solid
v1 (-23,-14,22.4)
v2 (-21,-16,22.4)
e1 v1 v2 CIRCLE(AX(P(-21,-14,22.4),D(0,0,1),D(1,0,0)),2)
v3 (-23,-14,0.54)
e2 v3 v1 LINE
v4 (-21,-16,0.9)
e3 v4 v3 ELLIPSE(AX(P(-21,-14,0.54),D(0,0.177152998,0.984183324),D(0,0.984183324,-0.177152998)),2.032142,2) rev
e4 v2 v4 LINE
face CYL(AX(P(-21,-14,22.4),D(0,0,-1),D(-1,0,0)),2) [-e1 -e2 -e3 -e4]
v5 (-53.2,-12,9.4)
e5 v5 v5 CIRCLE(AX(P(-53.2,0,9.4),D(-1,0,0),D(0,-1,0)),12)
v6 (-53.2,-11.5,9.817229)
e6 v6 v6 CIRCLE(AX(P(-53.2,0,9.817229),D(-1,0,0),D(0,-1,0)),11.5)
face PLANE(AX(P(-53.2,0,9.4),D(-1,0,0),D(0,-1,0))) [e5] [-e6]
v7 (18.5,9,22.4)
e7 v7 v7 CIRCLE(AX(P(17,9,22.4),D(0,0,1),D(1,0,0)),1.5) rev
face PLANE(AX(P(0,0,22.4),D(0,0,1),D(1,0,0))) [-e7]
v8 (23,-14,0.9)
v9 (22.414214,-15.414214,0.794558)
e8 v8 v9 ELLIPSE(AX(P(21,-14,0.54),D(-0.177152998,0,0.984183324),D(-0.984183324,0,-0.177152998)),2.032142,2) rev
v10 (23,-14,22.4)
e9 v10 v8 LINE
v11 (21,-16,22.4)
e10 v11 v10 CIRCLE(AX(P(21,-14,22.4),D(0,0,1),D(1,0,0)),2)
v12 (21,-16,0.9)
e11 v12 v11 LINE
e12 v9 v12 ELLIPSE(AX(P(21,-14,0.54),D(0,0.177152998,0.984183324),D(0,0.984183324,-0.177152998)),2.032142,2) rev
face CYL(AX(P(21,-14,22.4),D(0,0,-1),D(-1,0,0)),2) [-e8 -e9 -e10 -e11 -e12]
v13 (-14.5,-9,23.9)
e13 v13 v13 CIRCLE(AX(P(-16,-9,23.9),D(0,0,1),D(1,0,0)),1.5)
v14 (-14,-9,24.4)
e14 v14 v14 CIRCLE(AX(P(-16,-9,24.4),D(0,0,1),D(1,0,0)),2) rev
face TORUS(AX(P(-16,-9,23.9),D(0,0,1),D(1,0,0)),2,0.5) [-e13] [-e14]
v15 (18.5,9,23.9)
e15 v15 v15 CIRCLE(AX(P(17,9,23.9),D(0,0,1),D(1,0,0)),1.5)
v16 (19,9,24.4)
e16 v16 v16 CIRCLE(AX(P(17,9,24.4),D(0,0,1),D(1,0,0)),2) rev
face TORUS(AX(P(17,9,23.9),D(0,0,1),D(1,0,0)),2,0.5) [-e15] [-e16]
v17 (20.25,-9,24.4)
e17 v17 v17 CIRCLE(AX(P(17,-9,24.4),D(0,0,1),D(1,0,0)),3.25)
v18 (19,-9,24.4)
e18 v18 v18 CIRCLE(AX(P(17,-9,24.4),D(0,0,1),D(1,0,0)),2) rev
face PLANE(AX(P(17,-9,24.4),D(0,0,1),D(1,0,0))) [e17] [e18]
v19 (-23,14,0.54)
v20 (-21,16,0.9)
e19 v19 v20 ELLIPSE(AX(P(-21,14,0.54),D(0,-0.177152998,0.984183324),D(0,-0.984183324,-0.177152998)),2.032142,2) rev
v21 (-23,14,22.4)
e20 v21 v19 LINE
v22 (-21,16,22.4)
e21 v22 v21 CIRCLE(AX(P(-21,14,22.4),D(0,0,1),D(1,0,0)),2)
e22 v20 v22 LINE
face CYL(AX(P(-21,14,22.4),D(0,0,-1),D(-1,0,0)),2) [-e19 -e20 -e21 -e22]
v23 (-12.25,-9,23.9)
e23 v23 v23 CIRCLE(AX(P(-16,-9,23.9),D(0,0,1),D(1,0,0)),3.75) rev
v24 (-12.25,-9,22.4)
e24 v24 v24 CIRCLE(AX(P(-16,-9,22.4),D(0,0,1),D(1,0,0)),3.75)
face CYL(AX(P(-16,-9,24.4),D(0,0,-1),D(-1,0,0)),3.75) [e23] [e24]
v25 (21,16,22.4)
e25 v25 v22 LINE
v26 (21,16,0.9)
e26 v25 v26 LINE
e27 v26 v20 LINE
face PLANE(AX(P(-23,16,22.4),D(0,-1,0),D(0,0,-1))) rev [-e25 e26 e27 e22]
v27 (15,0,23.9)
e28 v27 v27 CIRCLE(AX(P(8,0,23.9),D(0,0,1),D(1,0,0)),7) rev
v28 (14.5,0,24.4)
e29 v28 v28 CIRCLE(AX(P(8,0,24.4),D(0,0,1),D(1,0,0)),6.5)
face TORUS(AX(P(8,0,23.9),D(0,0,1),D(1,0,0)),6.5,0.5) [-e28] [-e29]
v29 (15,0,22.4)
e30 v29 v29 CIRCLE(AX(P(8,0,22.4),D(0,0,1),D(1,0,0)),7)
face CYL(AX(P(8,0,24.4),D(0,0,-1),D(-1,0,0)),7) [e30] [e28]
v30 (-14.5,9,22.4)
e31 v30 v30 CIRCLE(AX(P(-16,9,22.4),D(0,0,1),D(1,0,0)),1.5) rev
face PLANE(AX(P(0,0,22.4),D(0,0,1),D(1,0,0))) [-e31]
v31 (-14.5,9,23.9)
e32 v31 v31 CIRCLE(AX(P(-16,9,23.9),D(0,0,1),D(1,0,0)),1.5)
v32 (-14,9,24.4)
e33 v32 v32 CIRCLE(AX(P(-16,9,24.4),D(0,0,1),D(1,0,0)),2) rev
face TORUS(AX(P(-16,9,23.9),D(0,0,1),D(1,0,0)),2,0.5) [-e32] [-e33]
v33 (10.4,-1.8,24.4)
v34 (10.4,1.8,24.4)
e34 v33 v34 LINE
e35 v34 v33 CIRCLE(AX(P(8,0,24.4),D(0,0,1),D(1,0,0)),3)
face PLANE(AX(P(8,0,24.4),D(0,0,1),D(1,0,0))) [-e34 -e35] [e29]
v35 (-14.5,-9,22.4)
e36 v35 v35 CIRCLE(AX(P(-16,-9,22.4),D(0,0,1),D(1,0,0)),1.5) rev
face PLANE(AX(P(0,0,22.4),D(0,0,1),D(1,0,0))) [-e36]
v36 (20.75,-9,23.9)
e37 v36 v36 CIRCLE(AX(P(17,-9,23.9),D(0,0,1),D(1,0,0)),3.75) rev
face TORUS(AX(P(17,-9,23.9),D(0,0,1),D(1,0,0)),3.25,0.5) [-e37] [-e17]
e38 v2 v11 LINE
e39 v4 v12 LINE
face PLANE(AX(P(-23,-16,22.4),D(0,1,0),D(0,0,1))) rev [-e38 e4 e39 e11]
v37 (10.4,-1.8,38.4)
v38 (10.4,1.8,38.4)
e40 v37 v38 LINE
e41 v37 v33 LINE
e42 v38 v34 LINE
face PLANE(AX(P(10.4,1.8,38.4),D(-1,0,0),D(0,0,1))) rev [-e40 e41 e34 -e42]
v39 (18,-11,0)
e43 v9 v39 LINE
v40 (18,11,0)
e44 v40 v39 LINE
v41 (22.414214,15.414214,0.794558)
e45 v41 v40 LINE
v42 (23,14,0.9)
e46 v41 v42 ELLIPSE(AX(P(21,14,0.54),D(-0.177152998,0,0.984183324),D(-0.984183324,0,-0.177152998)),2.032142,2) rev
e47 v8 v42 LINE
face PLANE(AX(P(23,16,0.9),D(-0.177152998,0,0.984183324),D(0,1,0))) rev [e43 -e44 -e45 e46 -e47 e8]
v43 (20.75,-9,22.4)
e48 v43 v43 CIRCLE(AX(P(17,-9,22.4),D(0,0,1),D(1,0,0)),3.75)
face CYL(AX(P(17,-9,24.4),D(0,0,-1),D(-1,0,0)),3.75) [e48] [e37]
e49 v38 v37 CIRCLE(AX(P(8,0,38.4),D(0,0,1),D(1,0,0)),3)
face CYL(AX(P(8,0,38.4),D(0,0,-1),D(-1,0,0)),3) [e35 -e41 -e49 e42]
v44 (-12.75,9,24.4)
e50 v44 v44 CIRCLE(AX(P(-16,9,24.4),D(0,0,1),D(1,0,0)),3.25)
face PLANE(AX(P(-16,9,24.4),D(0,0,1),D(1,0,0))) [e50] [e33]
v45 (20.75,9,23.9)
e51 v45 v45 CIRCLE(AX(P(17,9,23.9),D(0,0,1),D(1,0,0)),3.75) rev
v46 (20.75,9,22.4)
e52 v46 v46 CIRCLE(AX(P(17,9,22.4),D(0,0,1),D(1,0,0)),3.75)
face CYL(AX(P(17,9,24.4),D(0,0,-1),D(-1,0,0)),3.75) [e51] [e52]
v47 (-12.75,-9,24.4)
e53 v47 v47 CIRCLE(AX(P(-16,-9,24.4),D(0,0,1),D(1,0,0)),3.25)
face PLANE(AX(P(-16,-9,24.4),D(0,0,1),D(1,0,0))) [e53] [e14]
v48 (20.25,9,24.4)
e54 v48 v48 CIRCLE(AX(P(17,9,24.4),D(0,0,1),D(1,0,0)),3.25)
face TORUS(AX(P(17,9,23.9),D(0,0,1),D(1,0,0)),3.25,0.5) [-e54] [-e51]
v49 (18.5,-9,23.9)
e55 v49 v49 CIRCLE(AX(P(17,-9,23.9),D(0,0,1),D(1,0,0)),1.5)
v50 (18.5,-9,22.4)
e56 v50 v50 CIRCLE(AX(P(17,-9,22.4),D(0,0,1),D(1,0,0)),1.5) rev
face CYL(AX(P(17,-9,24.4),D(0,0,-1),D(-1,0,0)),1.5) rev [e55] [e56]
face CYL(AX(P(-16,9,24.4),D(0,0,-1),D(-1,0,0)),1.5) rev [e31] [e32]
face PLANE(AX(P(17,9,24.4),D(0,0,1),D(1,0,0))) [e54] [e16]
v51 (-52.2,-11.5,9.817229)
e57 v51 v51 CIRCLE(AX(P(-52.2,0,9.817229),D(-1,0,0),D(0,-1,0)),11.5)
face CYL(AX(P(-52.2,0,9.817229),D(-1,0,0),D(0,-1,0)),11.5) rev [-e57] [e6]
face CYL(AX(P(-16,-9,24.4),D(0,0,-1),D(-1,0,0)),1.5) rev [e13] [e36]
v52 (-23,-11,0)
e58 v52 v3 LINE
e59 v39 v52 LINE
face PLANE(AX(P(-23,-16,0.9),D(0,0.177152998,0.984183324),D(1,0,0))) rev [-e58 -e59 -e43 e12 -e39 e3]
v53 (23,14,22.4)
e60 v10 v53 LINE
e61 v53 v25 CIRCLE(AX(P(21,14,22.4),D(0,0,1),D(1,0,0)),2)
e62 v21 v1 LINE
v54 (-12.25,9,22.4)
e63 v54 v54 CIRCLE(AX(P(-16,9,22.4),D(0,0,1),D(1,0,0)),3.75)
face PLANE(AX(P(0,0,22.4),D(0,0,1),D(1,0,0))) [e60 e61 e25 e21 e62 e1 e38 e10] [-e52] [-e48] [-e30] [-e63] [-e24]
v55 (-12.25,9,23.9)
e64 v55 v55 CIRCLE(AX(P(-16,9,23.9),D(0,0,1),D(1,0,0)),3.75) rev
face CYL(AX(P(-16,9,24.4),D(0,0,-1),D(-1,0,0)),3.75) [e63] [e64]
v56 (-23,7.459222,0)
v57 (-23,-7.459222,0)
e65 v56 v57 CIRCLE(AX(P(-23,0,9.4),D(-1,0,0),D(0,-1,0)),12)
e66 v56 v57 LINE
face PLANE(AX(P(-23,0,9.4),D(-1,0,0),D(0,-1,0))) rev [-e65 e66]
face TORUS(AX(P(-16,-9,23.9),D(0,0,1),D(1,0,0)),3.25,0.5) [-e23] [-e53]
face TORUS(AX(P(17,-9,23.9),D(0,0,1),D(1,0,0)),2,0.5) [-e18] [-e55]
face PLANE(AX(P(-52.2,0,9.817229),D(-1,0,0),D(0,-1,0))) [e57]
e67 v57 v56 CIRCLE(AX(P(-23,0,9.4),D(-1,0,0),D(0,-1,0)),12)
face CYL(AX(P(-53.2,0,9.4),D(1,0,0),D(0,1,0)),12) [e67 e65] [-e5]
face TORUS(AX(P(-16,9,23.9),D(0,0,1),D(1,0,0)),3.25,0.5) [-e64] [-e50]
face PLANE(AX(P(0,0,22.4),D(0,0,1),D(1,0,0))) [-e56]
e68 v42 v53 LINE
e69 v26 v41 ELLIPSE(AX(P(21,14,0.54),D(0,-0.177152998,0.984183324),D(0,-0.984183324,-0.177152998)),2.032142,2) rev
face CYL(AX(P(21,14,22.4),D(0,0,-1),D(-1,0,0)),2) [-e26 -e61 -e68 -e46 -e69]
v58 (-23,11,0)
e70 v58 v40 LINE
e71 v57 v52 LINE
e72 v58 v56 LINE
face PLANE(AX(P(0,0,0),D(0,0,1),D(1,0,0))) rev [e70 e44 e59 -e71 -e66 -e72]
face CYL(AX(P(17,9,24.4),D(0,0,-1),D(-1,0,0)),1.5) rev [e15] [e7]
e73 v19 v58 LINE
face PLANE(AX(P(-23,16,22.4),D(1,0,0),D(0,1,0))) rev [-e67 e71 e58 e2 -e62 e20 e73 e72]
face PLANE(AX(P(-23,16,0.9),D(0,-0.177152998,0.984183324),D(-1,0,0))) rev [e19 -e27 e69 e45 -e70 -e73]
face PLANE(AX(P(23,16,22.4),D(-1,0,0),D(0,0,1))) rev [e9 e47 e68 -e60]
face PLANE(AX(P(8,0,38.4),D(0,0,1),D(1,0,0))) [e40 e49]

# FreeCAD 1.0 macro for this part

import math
import FreeCAD as App
import Part
import Sketcher


def edges_at(feature, points):
    """Names of the edges that pass closest to the given points."""
    edges = feature.Shape.Edges
    near = lambda p: min(range(len(edges)), key=lambda i: edges[i].distToShape(Part.Vertex(*p))[0])
    return sorted({f"Edge{near(p) + 1}" for p in points})

doc = App.newDocument("Part")
params = doc.addObject("Spreadsheet::Sheet", "Params")
for row, (alias, value) in enumerate([
    ("sketch1_width", "46 mm"),
    ("sketch1_height", "32 mm"),
    ("pad1_length", "22.4 mm"),
    ("sketch2_diameter", "3 mm"),
    ("sketch2_diameter2", "14 mm"),
    ("sketch2_diameter3", "7.5 mm"),
    ("pad2_length", "2 mm"),
    ("fillet_radius", "0.5 mm"),
    ("chamfer_size", "5 mm"),
    ("chamfer_size2", "0.9 mm"),
    ("fillet2_radius", "2 mm"),
    ("sketch3_diameter", "24 mm"),
    ("pad3_length", "30.2 mm"),
    ("sketch4_diameter", "23 mm"),
    ("pocket1_length", "1 mm"),
    ("sketch5_radius", "3 mm"),
    ("sketch5_height", "3.6 mm"),
    ("pad4_length", "14 mm"),
], start=1):
    params.set(f"A{row}", alias)
    params.set(f"B{row}", "=" + value)
    params.setAlias(f"B{row}", alias)

body = doc.addObject("PartDesign::Body", "Body")

# Sketch on XY plane
sketch1 = body.newObject("Sketcher::SketchObject", "Sketch")
sketch1.AttachmentSupport = (doc.getObject("XY_Plane"), [""])
sketch1.MapMode = "FlatFace"
sketch1.addGeometry(Part.LineSegment(App.Vector(-23, 16, 0), App.Vector(-23, -16, 0)), False)
sketch1.addGeometry(Part.LineSegment(App.Vector(-23, -16, 0), App.Vector(23, -16, 0)), False)
sketch1.addGeometry(Part.LineSegment(App.Vector(23, -16, 0), App.Vector(23, 16, 0)), False)
sketch1.addGeometry(Part.LineSegment(App.Vector(23, 16, 0), App.Vector(-23, 16, 0)), False)
sketch1.addConstraint(Sketcher.Constraint("Coincident", 0, 2, 1, 1))
sketch1.addConstraint(Sketcher.Constraint("Coincident", 1, 2, 2, 1))
sketch1.addConstraint(Sketcher.Constraint("Coincident", 2, 2, 3, 1))
sketch1.addConstraint(Sketcher.Constraint("Coincident", 3, 2, 0, 1))
sketch1.addConstraint(Sketcher.Constraint("Vertical", 0))
sketch1.addConstraint(Sketcher.Constraint("Horizontal", 1))
sketch1.addConstraint(Sketcher.Constraint("Vertical", 2))
sketch1.addConstraint(Sketcher.Constraint("Horizontal", 3))
sketch1.addConstraint(Sketcher.Constraint("Symmetric", 0, 2, 2, 2, -1, 1))
sketch1.addConstraint(Sketcher.Constraint("DistanceX", 1, 1, 1, 2, 46.0))
sketch1.addConstraint(Sketcher.Constraint("DistanceY", 0, 2, 0, 1, 32.0))
sketch1.setExpression("Constraints[9]", "Params.sketch1_width")
sketch1.setExpression("Constraints[10]", "Params.sketch1_height")
pad1 = body.newObject("PartDesign::Pad", "Pad")
pad1.Profile = sketch1
pad1.setExpression("Length", "Params.pad1_length")

# Sketch on XY plane
sketch2 = body.newObject("Sketcher::SketchObject", "Sketch001")
sketch2.AttachmentSupport = (doc.getObject("XY_Plane"), [""])
sketch2.MapMode = "FlatFace"
sketch2.AttachmentOffset = App.Placement(App.Vector(0, 0, 22.4), App.Rotation())
sketch2.addGeometry(Part.Circle(App.Vector(-16, 9, 0), App.Vector(0, 0, 1), 3.8), False)
sketch2.addGeometry(Part.Circle(App.Vector(-16, 9, 0), App.Vector(0, 0, 1), 1.5), False)
sketch2.addGeometry(Part.Circle(App.Vector(-16, -9, 0), App.Vector(0, 0, 1), 3.8), False)
sketch2.addGeometry(Part.Circle(App.Vector(-16, -9, 0), App.Vector(0, 0, 1), 1.5), False)
sketch2.addGeometry(Part.Circle(App.Vector(17, 9, 0), App.Vector(0, 0, 1), 3.8), False)
sketch2.addGeometry(Part.Circle(App.Vector(17, 9, 0), App.Vector(0, 0, 1), 1.5), False)
sketch2.addGeometry(Part.Circle(App.Vector(17, -9, 0), App.Vector(0, 0, 1), 3.8), False)
sketch2.addGeometry(Part.Circle(App.Vector(17, -9, 0), App.Vector(0, 0, 1), 1.5), False)
sketch2.addGeometry(Part.Circle(App.Vector(8, 0, 0), App.Vector(0, 0, 1), 7), False)
sketch2.addConstraint(Sketcher.Constraint("Coincident", 1, 3, 0, 3))
sketch2.addConstraint(Sketcher.Constraint("Coincident", 3, 3, 2, 3))
sketch2.addConstraint(Sketcher.Constraint("Coincident", 5, 3, 4, 3))
sketch2.addConstraint(Sketcher.Constraint("Coincident", 7, 3, 6, 3))
sketch2.addConstraint(Sketcher.Constraint("Equal", 0, 2))
sketch2.addConstraint(Sketcher.Constraint("Equal", 1, 3))
sketch2.addConstraint(Sketcher.Constraint("Equal", 2, 4))
sketch2.addConstraint(Sketcher.Constraint("Equal", 3, 5))
sketch2.addConstraint(Sketcher.Constraint("Equal", 4, 6))
sketch2.addConstraint(Sketcher.Constraint("Equal", 5, 7))
sketch2.addConstraint(Sketcher.Constraint("Symmetric", 0, 3, 2, 3, -1))
sketch2.addConstraint(Sketcher.Constraint("Symmetric", 4, 3, 6, 3, -1))
sketch2.addConstraint(Sketcher.Constraint("PointOnObject", 8, 3, -1))
sketch2.addConstraint(Sketcher.Constraint("Horizontal", 1, 3, 4, 3))
sketch2.addConstraint(Sketcher.Constraint("Diameter", 1, 3.0))
sketch2.addConstraint(Sketcher.Constraint("Diameter", 8, 14.0))
sketch2.addConstraint(Sketcher.Constraint("Diameter", 0, 7.5))
sketch2.addConstraint(Sketcher.Constraint("DistanceX", 0, 3, -1, 1, 16.0))
sketch2.addConstraint(Sketcher.Constraint("DistanceY", -1, 1, 0, 3, 9.0))
sketch2.addConstraint(Sketcher.Constraint("DistanceX", -1, 1, 4, 3, 17.0))
sketch2.addConstraint(Sketcher.Constraint("DistanceX", -1, 1, 8, 3, 8.0))
sketch2.setExpression("Constraints[14]", "Params.sketch2_diameter")
sketch2.setExpression("Constraints[15]", "Params.sketch2_diameter2")
sketch2.setExpression("Constraints[16]", "Params.sketch2_diameter3")
pad2 = body.newObject("PartDesign::Pad", "Pad001")
pad2.Profile = sketch2
pad2.setExpression("Length", "Params.pad2_length")
doc.recompute()

fillet = body.newObject("PartDesign::Fillet", "Fillet")
fillet.Base = (pad2, edges_at(pad2, [
    (-19.75, 9, 24.4),
    (-17.5, 9, 24.4),
    (-19.75, -9, 24.4),
    (-17.5, -9, 24.4),
    (13.25, 9, 24.4),
    (15.5, 9, 24.4),
    (13.25, -9, 24.4),
    (15.5, -9, 24.4),
    (1, 0, 24.4),
]))
fillet.setExpression("Radius", "Params.fillet_radius")
doc.recompute()

chamfer = body.newObject("PartDesign::Chamfer", "Chamfer")
chamfer.Base = (fillet, edges_at(fillet, [(0, -16, 0), (0, 16, 0), (23, 0, 0)]))
chamfer.ChamferType = "Two distances"
chamfer.setExpression("Size", "Params.chamfer_size")
chamfer.setExpression("Size2", "Params.chamfer_size2")
chamfer.FlipDirection = True
doc.recompute()

fillet2 = body.newObject("PartDesign::Fillet", "Fillet001")
fillet2.Base = (chamfer, edges_at(chamfer, [
    (23, -16, 11.65),
    (-23, -16, 11.65),
    (-23, 16, 11.65),
    (23, 16, 11.65),
]))
fillet2.setExpression("Radius", "Params.fillet2_radius")

# Sketch on YZ plane
sketch3 = body.newObject("Sketcher::SketchObject", "Sketch002")
sketch3.AttachmentSupport = (doc.getObject("YZ_Plane"), [""])
sketch3.MapMode = "FlatFace"
sketch3.AttachmentOffset = App.Placement(App.Vector(0, 0, -23), App.Rotation())
sketch3.addGeometry(Part.Circle(App.Vector(0, 9, 0), App.Vector(0, 0, 1), 12), False)
sketch3.addConstraint(Sketcher.Constraint("PointOnObject", 0, 3, -2))
sketch3.addConstraint(Sketcher.Constraint("Diameter", 0, 24.0))
sketch3.addConstraint(Sketcher.Constraint("DistanceY", -1, 1, 0, 3, 9.4))
sketch3.setExpression("Constraints[1]", "Params.sketch3_diameter")
pad3 = body.newObject("PartDesign::Pad", "Pad002")
pad3.Profile = sketch3
pad3.setExpression("Length", "Params.pad3_length")
pad3.Reversed = True

# Sketch on YZ plane
sketch4 = body.newObject("Sketcher::SketchObject", "Sketch003")
sketch4.AttachmentSupport = (doc.getObject("YZ_Plane"), [""])
sketch4.MapMode = "FlatFace"
sketch4.AttachmentOffset = App.Placement(App.Vector(0, 0, -53.2), App.Rotation())
sketch4.addGeometry(Part.Circle(App.Vector(0, 10, 0), App.Vector(0, 0, 1), 12), False)
sketch4.addConstraint(Sketcher.Constraint("PointOnObject", 0, 3, -2))
sketch4.addConstraint(Sketcher.Constraint("Diameter", 0, 23.0))
sketch4.addConstraint(Sketcher.Constraint("DistanceY", -1, 1, 0, 3, 9.817229))
sketch4.setExpression("Constraints[1]", "Params.sketch4_diameter")
pocket1 = body.newObject("PartDesign::Pocket", "Pocket")
pocket1.Profile = sketch4
pocket1.setExpression("Length", "Params.pocket1_length")
pocket1.Reversed = True

# Sketch on XY plane
sketch5 = body.newObject("Sketcher::SketchObject", "Sketch004")
sketch5.AttachmentSupport = (doc.getObject("XY_Plane"), [""])
sketch5.MapMode = "FlatFace"
sketch5.AttachmentOffset = App.Placement(App.Vector(0, 0, 24.4), App.Rotation())
sketch5.addGeometry(Part.LineSegment(App.Vector(10.4, -1.8, 0), App.Vector(10.4, 1.8, 0)), False)
sketch5.addGeometry(Part.ArcOfCircle(Part.Circle(App.Vector(8, 0, 0), App.Vector(0, 0, 1), 3), math.radians(37), math.radians(323)), False)
sketch5.addConstraint(Sketcher.Constraint("Coincident", 0, 1, 1, 2))
sketch5.addConstraint(Sketcher.Constraint("Coincident", 1, 1, 0, 2))
sketch5.addConstraint(Sketcher.Constraint("Vertical", 0))
sketch5.addConstraint(Sketcher.Constraint("PointOnObject", 1, 3, -1))
sketch5.addConstraint(Sketcher.Constraint("Radius", 1, 3.0))
sketch5.addConstraint(Sketcher.Constraint("DistanceY", 0, 1, 0, 2, 3.6))
sketch5.addConstraint(Sketcher.Constraint("DistanceX", -1, 1, 1, 3, 8.0))
sketch5.setExpression("Constraints[4]", "Params.sketch5_radius")
sketch5.setExpression("Constraints[5]", "Params.sketch5_height")
pad4 = body.newObject("PartDesign::Pad", "Pad003")
pad4.Profile = sketch5
pad4.setExpression("Length", "Params.pad4_length")

doc.recompute()
